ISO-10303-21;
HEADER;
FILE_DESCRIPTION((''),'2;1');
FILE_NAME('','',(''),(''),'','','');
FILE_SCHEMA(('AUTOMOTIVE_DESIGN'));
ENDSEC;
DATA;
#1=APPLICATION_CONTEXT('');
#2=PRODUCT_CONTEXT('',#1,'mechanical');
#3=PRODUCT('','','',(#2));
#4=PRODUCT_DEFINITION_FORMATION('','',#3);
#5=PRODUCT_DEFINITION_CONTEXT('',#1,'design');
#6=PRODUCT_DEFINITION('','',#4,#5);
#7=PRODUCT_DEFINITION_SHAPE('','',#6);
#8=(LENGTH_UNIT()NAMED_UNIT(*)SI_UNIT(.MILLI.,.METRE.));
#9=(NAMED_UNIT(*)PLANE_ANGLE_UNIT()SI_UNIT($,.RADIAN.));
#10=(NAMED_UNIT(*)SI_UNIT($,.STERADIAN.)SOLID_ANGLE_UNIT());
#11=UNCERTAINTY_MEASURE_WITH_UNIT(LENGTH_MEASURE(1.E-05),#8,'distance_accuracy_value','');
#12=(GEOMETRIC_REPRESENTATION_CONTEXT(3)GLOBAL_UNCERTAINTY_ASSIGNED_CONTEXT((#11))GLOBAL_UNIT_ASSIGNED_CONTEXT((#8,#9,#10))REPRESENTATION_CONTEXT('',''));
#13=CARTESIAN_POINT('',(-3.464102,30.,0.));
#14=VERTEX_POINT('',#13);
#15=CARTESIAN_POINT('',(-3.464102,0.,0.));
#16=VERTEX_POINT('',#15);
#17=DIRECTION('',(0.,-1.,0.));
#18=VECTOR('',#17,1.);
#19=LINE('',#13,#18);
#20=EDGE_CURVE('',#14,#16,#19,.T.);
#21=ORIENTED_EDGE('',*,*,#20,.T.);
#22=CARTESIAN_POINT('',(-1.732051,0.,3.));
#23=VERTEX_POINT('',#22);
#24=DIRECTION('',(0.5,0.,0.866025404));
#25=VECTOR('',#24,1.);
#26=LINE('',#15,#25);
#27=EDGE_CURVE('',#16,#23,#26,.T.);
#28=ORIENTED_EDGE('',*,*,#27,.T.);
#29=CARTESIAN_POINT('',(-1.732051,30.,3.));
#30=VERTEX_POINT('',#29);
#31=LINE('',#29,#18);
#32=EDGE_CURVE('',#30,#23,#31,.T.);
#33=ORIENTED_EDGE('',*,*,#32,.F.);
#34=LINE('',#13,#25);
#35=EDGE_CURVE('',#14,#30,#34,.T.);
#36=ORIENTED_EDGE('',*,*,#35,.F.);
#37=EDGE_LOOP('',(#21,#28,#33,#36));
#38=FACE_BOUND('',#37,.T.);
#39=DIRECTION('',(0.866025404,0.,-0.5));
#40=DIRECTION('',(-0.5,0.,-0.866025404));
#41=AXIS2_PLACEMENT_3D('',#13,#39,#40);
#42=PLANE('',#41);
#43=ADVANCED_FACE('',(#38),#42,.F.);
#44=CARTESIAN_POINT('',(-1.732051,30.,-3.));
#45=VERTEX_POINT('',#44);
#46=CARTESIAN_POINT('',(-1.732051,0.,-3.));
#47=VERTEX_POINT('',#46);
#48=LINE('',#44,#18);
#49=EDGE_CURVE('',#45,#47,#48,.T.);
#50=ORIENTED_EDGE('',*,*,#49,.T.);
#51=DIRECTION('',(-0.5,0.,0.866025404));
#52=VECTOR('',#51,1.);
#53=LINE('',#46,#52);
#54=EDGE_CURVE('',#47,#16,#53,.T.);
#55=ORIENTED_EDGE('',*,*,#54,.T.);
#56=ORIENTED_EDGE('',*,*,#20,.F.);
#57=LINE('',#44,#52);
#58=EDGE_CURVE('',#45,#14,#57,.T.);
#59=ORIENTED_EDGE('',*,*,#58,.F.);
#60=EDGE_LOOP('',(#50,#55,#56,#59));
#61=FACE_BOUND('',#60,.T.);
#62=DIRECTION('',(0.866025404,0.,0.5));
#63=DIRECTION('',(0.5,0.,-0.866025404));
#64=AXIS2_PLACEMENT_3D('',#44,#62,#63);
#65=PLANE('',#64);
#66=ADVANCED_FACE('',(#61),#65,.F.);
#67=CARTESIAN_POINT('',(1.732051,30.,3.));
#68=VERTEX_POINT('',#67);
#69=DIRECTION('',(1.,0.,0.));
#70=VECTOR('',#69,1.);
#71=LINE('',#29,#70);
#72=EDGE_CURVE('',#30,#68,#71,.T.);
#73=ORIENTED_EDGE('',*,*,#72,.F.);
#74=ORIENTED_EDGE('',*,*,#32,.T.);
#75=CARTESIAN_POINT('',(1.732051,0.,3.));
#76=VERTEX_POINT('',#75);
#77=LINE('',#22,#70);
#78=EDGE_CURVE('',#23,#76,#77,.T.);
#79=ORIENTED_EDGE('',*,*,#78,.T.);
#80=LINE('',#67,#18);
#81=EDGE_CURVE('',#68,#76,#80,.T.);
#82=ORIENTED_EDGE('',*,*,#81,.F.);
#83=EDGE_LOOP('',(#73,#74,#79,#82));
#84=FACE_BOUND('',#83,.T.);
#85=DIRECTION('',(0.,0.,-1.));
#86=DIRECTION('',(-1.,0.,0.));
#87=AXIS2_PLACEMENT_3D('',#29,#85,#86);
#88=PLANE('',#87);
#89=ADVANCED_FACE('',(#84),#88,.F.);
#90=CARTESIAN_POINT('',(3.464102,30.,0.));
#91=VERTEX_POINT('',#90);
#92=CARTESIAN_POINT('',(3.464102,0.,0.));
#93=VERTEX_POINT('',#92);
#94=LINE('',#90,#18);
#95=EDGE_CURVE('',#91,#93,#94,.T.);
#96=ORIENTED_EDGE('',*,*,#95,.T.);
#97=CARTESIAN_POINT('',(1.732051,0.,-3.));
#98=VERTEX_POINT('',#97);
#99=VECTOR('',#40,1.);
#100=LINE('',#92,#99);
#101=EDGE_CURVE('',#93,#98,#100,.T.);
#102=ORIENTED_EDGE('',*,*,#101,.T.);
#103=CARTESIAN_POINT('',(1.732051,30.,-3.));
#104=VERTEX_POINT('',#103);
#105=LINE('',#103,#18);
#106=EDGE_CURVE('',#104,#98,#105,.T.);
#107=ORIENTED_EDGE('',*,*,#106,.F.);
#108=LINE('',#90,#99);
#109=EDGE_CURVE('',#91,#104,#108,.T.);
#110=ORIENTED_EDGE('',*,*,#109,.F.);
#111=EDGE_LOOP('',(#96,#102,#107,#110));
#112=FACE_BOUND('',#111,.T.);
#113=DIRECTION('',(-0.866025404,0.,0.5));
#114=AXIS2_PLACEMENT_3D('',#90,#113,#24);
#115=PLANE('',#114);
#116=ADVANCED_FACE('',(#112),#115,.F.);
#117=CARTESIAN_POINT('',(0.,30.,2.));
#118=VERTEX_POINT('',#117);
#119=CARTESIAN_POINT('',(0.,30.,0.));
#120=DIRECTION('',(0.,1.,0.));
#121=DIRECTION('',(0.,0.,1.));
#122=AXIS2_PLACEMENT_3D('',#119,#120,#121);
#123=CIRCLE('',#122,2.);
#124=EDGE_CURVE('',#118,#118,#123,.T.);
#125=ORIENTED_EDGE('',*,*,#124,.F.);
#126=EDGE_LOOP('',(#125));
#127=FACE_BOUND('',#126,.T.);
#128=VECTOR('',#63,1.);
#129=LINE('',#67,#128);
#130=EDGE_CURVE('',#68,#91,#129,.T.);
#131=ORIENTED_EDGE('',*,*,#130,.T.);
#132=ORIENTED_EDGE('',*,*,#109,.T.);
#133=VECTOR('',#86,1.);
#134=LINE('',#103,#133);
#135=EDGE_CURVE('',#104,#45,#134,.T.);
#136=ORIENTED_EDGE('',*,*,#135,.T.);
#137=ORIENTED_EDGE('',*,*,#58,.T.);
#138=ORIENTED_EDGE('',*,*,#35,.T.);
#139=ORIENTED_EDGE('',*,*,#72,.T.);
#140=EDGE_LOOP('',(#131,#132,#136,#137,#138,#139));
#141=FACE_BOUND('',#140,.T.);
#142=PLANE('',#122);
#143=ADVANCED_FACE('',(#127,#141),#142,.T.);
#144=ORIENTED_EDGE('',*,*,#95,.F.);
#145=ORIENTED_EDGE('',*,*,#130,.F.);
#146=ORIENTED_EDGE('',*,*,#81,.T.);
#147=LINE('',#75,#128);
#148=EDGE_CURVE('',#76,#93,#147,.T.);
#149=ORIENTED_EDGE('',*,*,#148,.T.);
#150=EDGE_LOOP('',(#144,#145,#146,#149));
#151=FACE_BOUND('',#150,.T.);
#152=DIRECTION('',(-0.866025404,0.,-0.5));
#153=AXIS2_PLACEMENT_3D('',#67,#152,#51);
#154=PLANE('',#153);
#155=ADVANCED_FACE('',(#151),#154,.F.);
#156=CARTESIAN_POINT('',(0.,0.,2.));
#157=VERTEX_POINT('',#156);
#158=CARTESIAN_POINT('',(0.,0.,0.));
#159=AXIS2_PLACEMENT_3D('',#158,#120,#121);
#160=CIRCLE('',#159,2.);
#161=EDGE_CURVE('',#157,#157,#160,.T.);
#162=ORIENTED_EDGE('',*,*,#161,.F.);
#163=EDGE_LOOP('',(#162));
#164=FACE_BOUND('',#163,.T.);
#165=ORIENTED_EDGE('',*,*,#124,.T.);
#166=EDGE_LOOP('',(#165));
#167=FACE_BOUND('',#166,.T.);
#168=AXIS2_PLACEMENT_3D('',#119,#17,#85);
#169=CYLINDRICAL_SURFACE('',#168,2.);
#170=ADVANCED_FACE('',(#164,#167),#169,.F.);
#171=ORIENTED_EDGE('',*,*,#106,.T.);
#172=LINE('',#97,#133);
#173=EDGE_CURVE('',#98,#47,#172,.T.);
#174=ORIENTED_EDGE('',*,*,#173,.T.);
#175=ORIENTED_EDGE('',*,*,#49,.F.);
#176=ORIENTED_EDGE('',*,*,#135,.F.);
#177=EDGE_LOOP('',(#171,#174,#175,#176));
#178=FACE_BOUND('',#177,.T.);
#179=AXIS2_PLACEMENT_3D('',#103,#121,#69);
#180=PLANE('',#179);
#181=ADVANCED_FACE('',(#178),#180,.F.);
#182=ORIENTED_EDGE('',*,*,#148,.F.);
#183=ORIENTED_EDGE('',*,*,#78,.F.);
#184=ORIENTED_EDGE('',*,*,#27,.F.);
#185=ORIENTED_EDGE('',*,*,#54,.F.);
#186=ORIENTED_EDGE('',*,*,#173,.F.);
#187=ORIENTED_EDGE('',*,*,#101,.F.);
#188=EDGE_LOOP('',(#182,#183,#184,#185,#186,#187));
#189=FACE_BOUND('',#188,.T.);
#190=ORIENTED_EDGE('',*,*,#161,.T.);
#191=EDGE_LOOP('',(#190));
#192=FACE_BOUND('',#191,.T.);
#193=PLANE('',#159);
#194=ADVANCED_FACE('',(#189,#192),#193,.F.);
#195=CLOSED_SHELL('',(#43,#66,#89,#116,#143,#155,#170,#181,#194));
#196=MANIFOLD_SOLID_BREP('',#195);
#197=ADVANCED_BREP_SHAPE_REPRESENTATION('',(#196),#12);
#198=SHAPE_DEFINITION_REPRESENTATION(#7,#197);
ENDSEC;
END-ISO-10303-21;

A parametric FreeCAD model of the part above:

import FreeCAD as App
import Part
import Sketcher
from FreeCAD import Vector
Q = App.Units.Quantity

doc = App.newDocument("Part")
body = doc.addObject("PartDesign::Body", "Body")

# Sketch on XZ plane
sketch1 = body.newObject("Sketcher::SketchObject", "Sketch")
sketch1.AttachmentSupport = (doc.getObject("XZ_Plane"), [""])
sketch1.MapMode = "FlatFace"
sketch1.addGeometry([
    Part.LineSegment(Vector(3.464102, 0, 0), Vector(1.732051, -3, 0)),  # 0
    Part.LineSegment(Vector(1.732051, -3, 0), Vector(-1.732051, -3, 0)),  # 1
    Part.LineSegment(Vector(-1.732051, -3, 0), Vector(-3.464102, 0, 0)),  # 2
    Part.LineSegment(Vector(-3.464102, 0, 0), Vector(-1.732051, 3, 0)),  # 3
    Part.LineSegment(Vector(-1.732051, 3, 0), Vector(1.732051, 3, 0)),  # 4
    Part.LineSegment(Vector(1.732051, 3, 0), Vector(3.464102, 0, 0)),  # 5
    Part.Circle(Vector(0, 0, 0), Vector(0, 0, 1), 2),  # 6
], False)
sketch1.addConstraint([
    Sketcher.Constraint("Coincident", 0, 2, 1, 1),
    Sketcher.Constraint("Coincident", 1, 2, 2, 1),
    Sketcher.Constraint("Coincident", 2, 2, 3, 1),
    Sketcher.Constraint("Coincident", 3, 2, 4, 1),
    Sketcher.Constraint("Coincident", 4, 2, 5, 1),
    Sketcher.Constraint("Coincident", 5, 2, 0, 1),
    Sketcher.Constraint("Horizontal", 1),
    Sketcher.Constraint("Horizontal", 4),
    Sketcher.Constraint("Coincident", 6, 3, -1, 1),
    Sketcher.Constraint("Symmetric", 0, 2, 3, 2, -1, 1),
    Sketcher.Constraint("Symmetric", 2, 2, 5, 2, -1, 1),
    Sketcher.Constraint("PointOnObject", 2, 2, -1),
    Sketcher.Constraint("Parallel", 2, 5),
    Sketcher.Constraint("Vertical", 1, 2, 3, 2),
    Sketcher.Constraint("Diameter", 6, Q("4 mm")),
    Sketcher.Constraint("Angle", 0, Q("-120 deg")),
    Sketcher.Constraint("DistanceY", 0, 2, -1, 1, Q("3 mm")),
    Sketcher.Constraint("DistanceX", 1, 2, 1, 1, Q("3.464102 mm")),
])
pad1 = body.newObject("PartDesign::Pad", "Pad")
pad1.Profile = sketch1
pad1.Length = 30
pad1.Reversed = True

doc.recompute()
